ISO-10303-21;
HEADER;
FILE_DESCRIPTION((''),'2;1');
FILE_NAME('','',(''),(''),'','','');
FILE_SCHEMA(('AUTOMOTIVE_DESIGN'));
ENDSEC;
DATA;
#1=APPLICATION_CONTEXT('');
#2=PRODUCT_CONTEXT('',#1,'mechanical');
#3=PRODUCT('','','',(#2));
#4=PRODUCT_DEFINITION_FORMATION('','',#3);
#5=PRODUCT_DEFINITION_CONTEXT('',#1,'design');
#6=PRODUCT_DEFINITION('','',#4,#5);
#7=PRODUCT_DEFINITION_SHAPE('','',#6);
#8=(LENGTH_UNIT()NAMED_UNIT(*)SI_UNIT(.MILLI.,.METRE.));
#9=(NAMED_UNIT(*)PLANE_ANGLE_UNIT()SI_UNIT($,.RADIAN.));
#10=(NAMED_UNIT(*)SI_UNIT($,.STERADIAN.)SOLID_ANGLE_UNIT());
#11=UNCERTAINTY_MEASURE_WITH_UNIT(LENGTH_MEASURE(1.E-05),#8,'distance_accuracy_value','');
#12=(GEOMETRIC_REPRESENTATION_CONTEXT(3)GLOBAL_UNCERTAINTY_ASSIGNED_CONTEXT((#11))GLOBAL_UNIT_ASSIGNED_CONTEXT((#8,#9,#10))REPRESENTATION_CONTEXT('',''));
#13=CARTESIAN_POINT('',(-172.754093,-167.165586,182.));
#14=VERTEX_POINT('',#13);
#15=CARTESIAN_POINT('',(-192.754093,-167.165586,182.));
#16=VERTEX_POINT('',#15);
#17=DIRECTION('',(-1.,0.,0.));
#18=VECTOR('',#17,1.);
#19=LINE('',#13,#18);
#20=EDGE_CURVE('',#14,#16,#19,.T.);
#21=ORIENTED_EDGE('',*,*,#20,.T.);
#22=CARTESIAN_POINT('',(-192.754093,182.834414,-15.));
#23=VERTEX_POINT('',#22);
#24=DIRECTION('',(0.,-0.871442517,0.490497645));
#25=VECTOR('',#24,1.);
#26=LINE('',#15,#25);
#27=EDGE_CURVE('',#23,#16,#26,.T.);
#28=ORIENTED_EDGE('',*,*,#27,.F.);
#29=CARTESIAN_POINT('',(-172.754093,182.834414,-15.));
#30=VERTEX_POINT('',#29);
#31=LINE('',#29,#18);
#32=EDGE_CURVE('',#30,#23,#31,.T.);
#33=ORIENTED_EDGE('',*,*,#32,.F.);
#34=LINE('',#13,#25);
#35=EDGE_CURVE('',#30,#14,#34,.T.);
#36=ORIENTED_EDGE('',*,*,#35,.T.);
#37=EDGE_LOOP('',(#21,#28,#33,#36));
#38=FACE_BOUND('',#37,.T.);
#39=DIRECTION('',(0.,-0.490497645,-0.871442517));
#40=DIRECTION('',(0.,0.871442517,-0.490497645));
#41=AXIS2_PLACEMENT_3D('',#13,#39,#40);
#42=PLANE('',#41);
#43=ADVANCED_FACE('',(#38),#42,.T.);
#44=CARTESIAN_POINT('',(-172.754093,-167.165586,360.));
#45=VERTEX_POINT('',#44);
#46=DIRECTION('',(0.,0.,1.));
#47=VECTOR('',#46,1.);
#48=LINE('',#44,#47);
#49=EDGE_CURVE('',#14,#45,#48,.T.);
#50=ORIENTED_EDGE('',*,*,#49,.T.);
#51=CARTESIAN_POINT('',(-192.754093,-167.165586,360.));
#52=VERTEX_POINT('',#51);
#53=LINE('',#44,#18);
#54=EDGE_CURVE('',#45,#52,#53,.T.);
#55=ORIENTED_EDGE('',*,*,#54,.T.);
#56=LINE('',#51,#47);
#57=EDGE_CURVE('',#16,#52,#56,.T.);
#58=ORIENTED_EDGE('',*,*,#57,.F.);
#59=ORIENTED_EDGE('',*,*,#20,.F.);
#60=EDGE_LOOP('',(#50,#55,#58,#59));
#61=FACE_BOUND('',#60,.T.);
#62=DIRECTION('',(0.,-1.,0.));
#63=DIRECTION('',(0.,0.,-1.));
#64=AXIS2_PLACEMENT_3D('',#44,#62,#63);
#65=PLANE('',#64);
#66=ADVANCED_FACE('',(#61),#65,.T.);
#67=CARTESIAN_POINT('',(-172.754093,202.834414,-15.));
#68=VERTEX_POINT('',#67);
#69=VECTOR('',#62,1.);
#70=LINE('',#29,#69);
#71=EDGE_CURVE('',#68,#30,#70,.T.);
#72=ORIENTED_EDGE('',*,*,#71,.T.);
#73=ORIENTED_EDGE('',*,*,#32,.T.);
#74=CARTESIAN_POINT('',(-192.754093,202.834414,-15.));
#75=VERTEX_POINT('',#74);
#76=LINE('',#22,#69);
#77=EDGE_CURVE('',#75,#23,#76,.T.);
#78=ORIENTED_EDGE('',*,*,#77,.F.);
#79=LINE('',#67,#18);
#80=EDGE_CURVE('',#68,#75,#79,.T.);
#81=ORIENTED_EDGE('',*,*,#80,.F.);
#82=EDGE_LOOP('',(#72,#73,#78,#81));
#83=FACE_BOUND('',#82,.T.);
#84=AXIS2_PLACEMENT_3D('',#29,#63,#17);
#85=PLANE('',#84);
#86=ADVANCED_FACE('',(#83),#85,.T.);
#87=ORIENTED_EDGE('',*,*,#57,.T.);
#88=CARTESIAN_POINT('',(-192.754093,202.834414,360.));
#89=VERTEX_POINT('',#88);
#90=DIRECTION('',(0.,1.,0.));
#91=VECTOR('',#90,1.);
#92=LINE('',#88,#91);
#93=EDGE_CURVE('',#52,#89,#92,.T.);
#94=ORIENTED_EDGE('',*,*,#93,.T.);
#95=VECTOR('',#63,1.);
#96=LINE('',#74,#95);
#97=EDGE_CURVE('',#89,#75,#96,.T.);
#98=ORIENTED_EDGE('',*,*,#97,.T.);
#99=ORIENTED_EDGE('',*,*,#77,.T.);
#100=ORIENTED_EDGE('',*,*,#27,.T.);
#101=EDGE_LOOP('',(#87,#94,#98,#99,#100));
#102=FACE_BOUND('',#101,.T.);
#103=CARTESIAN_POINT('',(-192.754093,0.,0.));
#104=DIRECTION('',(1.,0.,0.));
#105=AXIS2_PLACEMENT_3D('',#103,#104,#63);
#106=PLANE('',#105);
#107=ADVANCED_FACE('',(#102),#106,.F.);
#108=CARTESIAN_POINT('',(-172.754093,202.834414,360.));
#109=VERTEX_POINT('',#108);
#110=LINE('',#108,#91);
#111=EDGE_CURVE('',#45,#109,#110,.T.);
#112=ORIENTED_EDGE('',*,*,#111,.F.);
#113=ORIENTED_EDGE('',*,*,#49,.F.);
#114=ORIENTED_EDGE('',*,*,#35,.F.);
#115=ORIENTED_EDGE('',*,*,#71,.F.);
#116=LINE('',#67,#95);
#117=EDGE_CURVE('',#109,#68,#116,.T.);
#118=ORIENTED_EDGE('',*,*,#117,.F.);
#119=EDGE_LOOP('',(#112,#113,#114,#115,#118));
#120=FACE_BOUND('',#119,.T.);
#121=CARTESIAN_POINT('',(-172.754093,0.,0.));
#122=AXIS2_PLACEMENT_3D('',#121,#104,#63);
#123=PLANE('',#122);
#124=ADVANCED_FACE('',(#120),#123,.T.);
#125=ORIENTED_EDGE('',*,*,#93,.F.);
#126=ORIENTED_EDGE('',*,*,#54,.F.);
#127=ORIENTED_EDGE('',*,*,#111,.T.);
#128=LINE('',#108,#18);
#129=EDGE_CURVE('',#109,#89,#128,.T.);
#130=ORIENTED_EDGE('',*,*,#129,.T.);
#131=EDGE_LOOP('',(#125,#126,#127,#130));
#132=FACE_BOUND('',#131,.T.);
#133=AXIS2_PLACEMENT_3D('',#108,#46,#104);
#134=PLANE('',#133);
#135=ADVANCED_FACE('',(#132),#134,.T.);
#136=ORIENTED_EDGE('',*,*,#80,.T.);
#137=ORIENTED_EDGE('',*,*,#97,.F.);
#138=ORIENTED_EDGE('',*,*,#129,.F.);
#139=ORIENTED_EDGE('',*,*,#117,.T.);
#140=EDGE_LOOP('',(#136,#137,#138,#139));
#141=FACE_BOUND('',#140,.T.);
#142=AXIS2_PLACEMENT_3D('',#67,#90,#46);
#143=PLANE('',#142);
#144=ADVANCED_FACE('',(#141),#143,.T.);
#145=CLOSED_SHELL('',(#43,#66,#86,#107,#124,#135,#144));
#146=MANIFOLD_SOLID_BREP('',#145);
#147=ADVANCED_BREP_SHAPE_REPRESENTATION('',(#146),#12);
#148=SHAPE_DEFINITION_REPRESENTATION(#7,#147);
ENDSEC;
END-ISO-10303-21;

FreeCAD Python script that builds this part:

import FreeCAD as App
import Part
import Sketcher

V = App.Vector
Q = App.Units.Quantity


def add_polygon(sketch, points):
    """Adds a closed chain of lines whose ends are joined by coincident constraints."""
    first, n = sketch.GeometryCount, len(points)
    for a, b in zip(points, points[1:] + points[:1]):
        sketch.addGeometry(Part.LineSegment(App.Vector(*a, 0), App.Vector(*b, 0)), False)
    for i in range(n):
        sketch.addConstraint(Sketcher.Constraint("Coincident", first + i, 2, first + (i + 1) % n, 1))

doc = App.newDocument("Part")
body = doc.addObject("PartDesign::Body", "Body")

# Sketch on YZ plane
sketch1 = body.newObject("Sketcher::SketchObject", "Sketch")
sketch1.AttachmentSupport = (doc.getObject("YZ_Plane"), [""])
sketch1.MapMode = "FlatFace"
sketch1.AttachmentOffset = App.Placement(V(0, 0, -192.754093), App.Rotation())
add_polygon(sketch1, [(-167.165586, 360), (202.834414, 360), (202.834414, -15), (182.834414, -15), (-167.165586, 182)])  # lines 0-4
sketch1.addConstraint([
    Sketcher.Constraint("Horizontal", 0),
    Sketcher.Constraint("Vertical", 1),
    Sketcher.Constraint("Horizontal", 2),
    Sketcher.Constraint("Vertical", 4),
    Sketcher.Constraint("DistanceX", 0, 1, 0, 2, Q("370 mm")),
    Sketcher.Constraint("DistanceX", 2, 2, 2, 1, Q("20 mm")),
    Sketcher.Constraint("DistanceY", 1, 2, 1, 1, Q("375 mm")),
    Sketcher.Constraint("DistanceY", 4, 1, 4, 2, Q("178 mm")),
    Sketcher.Constraint("DistanceY", -1, 1, 0, 2, Q("360 mm")),
    Sketcher.Constraint("DistanceX", -1, 1, 0, 2, Q("202.834414 mm")),
])
pad1 = body.newObject("PartDesign::Pad", "Pad")
pad1.Profile = sketch1
pad1.Length = 20

doc.recompute()
